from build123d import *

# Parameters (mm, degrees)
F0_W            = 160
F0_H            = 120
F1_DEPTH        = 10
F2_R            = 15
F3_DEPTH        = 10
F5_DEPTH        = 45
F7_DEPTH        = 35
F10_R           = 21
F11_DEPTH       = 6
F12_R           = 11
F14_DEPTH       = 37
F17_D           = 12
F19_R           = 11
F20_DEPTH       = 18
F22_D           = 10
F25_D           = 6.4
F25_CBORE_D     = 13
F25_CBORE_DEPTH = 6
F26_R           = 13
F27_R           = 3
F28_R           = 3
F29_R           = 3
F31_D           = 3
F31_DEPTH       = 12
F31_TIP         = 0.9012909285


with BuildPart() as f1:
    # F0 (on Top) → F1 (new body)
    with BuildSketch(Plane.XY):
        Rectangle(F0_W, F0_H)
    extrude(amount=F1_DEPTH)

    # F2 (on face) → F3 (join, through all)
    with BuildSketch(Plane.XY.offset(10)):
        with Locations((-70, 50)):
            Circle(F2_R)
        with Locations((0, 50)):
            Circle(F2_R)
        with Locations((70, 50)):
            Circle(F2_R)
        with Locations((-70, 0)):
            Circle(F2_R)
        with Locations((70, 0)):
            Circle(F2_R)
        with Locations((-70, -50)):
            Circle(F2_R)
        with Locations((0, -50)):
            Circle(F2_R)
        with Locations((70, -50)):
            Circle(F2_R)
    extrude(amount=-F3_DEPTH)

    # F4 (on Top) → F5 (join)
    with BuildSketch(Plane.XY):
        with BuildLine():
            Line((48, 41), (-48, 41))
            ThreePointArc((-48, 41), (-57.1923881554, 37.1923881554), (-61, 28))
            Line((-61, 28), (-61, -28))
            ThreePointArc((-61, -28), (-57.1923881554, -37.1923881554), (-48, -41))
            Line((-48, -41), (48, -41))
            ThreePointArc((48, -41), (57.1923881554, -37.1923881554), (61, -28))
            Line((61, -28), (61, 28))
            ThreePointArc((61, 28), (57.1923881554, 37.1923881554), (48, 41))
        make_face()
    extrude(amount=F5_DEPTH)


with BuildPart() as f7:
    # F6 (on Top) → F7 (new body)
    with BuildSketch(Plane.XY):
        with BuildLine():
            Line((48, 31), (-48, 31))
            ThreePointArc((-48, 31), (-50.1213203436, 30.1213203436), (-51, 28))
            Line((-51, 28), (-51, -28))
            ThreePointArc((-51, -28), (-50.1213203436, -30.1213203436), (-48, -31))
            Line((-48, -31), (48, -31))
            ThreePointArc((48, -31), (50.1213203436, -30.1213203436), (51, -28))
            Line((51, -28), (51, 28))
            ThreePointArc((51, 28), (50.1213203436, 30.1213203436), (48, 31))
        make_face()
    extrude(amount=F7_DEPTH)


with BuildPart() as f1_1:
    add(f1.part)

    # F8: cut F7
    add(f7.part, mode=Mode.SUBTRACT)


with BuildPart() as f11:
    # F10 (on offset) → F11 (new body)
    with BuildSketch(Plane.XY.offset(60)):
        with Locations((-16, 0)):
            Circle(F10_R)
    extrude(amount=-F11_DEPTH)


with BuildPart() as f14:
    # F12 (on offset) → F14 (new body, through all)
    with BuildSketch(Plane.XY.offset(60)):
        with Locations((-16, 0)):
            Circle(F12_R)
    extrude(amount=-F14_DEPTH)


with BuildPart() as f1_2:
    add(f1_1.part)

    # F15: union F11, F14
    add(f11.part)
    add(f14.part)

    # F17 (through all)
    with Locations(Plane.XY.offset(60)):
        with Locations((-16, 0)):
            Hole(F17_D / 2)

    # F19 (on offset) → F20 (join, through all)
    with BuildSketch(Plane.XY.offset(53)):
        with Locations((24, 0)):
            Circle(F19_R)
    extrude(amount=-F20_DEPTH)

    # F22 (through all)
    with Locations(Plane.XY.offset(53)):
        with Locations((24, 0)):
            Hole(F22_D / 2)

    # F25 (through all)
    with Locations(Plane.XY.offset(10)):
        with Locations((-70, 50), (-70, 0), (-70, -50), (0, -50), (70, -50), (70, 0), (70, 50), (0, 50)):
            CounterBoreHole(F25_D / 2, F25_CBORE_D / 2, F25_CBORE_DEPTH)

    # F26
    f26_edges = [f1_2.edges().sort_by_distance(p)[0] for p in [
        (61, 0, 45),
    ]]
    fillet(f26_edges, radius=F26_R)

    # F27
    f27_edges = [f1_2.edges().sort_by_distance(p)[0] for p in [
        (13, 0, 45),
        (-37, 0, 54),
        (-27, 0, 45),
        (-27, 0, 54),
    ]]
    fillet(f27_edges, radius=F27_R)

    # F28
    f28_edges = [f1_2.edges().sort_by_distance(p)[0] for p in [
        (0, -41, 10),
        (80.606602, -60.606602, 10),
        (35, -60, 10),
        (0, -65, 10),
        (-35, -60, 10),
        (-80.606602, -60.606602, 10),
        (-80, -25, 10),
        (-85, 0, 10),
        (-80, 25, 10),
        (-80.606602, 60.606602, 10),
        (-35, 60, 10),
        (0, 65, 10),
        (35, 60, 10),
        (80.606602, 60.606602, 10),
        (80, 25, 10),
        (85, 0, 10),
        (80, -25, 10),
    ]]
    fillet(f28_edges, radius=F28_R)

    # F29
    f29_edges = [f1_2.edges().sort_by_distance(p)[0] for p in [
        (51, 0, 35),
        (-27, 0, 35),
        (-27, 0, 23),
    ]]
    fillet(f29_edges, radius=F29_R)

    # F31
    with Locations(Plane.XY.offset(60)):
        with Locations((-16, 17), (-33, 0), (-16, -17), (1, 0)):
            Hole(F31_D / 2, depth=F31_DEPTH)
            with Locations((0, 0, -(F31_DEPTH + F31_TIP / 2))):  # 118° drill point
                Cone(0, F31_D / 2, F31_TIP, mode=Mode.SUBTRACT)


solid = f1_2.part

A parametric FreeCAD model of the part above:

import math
import FreeCAD as App
import Part
import Sketcher
from FreeCAD import Vector


def edges_at(feature, points):
    """Names of the edges that pass closest to the given points."""
    edges = feature.Shape.Edges
    near = lambda p: min(range(len(edges)), key=lambda i: edges[i].distToShape(Part.Vertex(*p))[0])
    return sorted({f"Edge{near(p) + 1}" for p in points})


def add_polygon(sketch, points):
    """Adds a closed chain of lines whose ends are joined by coincident constraints."""
    first, n = sketch.GeometryCount, len(points)
    for a, b in zip(points, points[1:] + points[:1]):
        sketch.addGeometry(Part.LineSegment(App.Vector(*a, 0), App.Vector(*b, 0)), False)
    for i in range(n):
        sketch.addConstraint(Sketcher.Constraint("Coincident", first + i, 2, first + (i + 1) % n, 1))

doc = App.newDocument("Part")
body = doc.addObject("PartDesign::Body", "Body")

sketch1 = body.newObject("Sketcher::SketchObject", "Sketch")
sketch1.AttachmentSupport = (doc.getObject("XY_Plane"), [""])
sketch1.MapMode = "FlatFace"
add_polygon(sketch1, [(-80, 60), (-80, -60), (80, -60), (80, 60)])
sketch1.addConstraint(Sketcher.Constraint("Vertical", 0))
sketch1.addConstraint(Sketcher.Constraint("Horizontal", 1))
sketch1.addConstraint(Sketcher.Constraint("Vertical", 2))
sketch1.addConstraint(Sketcher.Constraint("Horizontal", 3))
sketch1.addConstraint(Sketcher.Constraint("Symmetric", 0, 2, 2, 2, -1, 1))
sketch1.addConstraint(Sketcher.Constraint("DistanceX", 1, 1, 1, 2, 160.0))
sketch1.addConstraint(Sketcher.Constraint("DistanceY", 0, 2, 0, 1, 120.0))
pad1 = body.newObject("PartDesign::Pad", "Pad")
pad1.Profile = sketch1
pad1.Length = 10

sketch2 = body.newObject("Sketcher::SketchObject", "Sketch001")
sketch2.AttachmentSupport = (doc.getObject("XY_Plane"), [""])
sketch2.MapMode = "FlatFace"
sketch2.AttachmentOffset = App.Placement(Vector(0, 0, 10), App.Rotation())
sketch2.addGeometry(Part.Circle(Vector(-70, 50, 0), Vector(0, 0, 1), 15), False)
sketch2.addGeometry(Part.Circle(Vector(0, 50, 0), Vector(0, 0, 1), 15), False)
sketch2.addGeometry(Part.Circle(Vector(70, 50, 0), Vector(0, 0, 1), 15), False)
sketch2.addGeometry(Part.Circle(Vector(-70, 0, 0), Vector(0, 0, 1), 15), False)
sketch2.addGeometry(Part.Circle(Vector(70, 0, 0), Vector(0, 0, 1), 15), False)
sketch2.addGeometry(Part.Circle(Vector(-70, -50, 0), Vector(0, 0, 1), 15), False)
sketch2.addGeometry(Part.Circle(Vector(0, -50, 0), Vector(0, 0, 1), 15), False)
sketch2.addGeometry(Part.Circle(Vector(70, -50, 0), Vector(0, 0, 1), 15), False)
sketch2.addConstraint(Sketcher.Constraint("Equal", 0, 1))
sketch2.addConstraint(Sketcher.Constraint("Equal", 1, 2))
sketch2.addConstraint(Sketcher.Constraint("Equal", 2, 3))
sketch2.addConstraint(Sketcher.Constraint("Equal", 3, 4))
sketch2.addConstraint(Sketcher.Constraint("Equal", 4, 5))
sketch2.addConstraint(Sketcher.Constraint("Equal", 5, 6))
sketch2.addConstraint(Sketcher.Constraint("Equal", 6, 7))
sketch2.addConstraint(Sketcher.Constraint("Symmetric", 3, 3, 4, 3, -1, 1))
sketch2.addConstraint(Sketcher.Constraint("Symmetric", 2, 3, 5, 3, -1, 1))
sketch2.addConstraint(Sketcher.Constraint("Symmetric", 1, 3, 6, 3, -1, 1))
sketch2.addConstraint(Sketcher.Constraint("Symmetric", 0, 3, 7, 3, -1, 1))
sketch2.addConstraint(Sketcher.Constraint("Symmetric", 0, 3, 2, 3, -2))
sketch2.addConstraint(Sketcher.Constraint("PointOnObject", 1, 3, -2))
sketch2.addConstraint(Sketcher.Constraint("PointOnObject", 3, 3, -1))
sketch2.addConstraint(Sketcher.Constraint("Horizontal", 0, 3, 1, 3))
sketch2.addConstraint(Sketcher.Constraint("Vertical", 0, 3, 3, 3))
sketch2.addConstraint(Sketcher.Constraint("Diameter", 0, 30.0))
sketch2.addConstraint(Sketcher.Constraint("DistanceX", 0, 3, -1, 1, 70.0))
sketch2.addConstraint(Sketcher.Constraint("DistanceY", -1, 1, 0, 3, 50.0))
pad2 = body.newObject("PartDesign::Pad", "Pad001")
pad2.Profile = sketch2
pad2.Type = "UpToLast"
pad2.Reversed = True

sketch3 = body.newObject("Sketcher::SketchObject", "Sketch002")
sketch3.AttachmentSupport = (doc.getObject("XY_Plane"), [""])
sketch3.MapMode = "FlatFace"
sketch3.addGeometry(Part.LineSegment(Vector(48, 41, 0), Vector(-48, 41, 0)), False)
sketch3.addGeometry(Part.ArcOfCircle(Part.Circle(Vector(-48, 28, 0), Vector(0, 0, 1), 13), math.radians(90), math.radians(180)), False)
sketch3.addGeometry(Part.LineSegment(Vector(-61, 28, 0), Vector(-61, -28, 0)), False)
sketch3.addGeometry(Part.ArcOfCircle(Part.Circle(Vector(-48, -28, 0), Vector(0, 0, 1), 13), math.radians(180), math.radians(270)), False)
sketch3.addGeometry(Part.LineSegment(Vector(-48, -41, 0), Vector(48, -41, 0)), False)
sketch3.addGeometry(Part.ArcOfCircle(Part.Circle(Vector(48, -28, 0), Vector(0, 0, 1), 13), math.radians(-90), math.radians(0)), False)
sketch3.addGeometry(Part.LineSegment(Vector(61, -28, 0), Vector(61, 28, 0)), False)
sketch3.addGeometry(Part.ArcOfCircle(Part.Circle(Vector(48, 28, 0), Vector(0, 0, 1), 13), math.radians(0), math.radians(90)), False)
sketch3.addConstraint(Sketcher.Constraint("Tangent", 0, 2, 1, 1))
sketch3.addConstraint(Sketcher.Constraint("Tangent", 1, 2, 2, 1))
sketch3.addConstraint(Sketcher.Constraint("Tangent", 2, 2, 3, 1))
sketch3.addConstraint(Sketcher.Constraint("Tangent", 3, 2, 4, 1))
sketch3.addConstraint(Sketcher.Constraint("Tangent", 4, 2, 5, 1))
sketch3.addConstraint(Sketcher.Constraint("Tangent", 5, 2, 6, 1))
sketch3.addConstraint(Sketcher.Constraint("Tangent", 6, 2, 7, 1))
sketch3.addConstraint(Sketcher.Constraint("Tangent", 7, 2, 0, 1))
sketch3.addConstraint(Sketcher.Constraint("Horizontal", 0))
sketch3.addConstraint(Sketcher.Constraint("Vertical", 2))
sketch3.addConstraint(Sketcher.Constraint("Horizontal", 4))
sketch3.addConstraint(Sketcher.Constraint("Vertical", 6))
sketch3.addConstraint(Sketcher.Constraint("Equal", 1, 3))
sketch3.addConstraint(Sketcher.Constraint("Equal", 3, 5))
sketch3.addConstraint(Sketcher.Constraint("Equal", 5, 7))
sketch3.addConstraint(Sketcher.Constraint("Symmetric", 1, 3, 5, 3, -1, 1))
sketch3.addConstraint(Sketcher.Constraint("Radius", 1, 13.0))
sketch3.addConstraint(Sketcher.Constraint("DistanceX", 0, 2, 0, 1, 96.0))
sketch3.addConstraint(Sketcher.Constraint("DistanceY", 2, 2, 2, 1, 56.0))
pad3 = body.newObject("PartDesign::Pad", "Pad002")
pad3.Profile = sketch3
pad3.Length = 45
body2 = doc.addObject("PartDesign::Body", "Body001")

sketch4 = body2.newObject("Sketcher::SketchObject", "Sketch003")
sketch4.AttachmentSupport = (doc.getObject("XY_Plane001"), [""])
sketch4.MapMode = "FlatFace"
sketch4.addGeometry(Part.LineSegment(Vector(48, 31, 0), Vector(-48, 31, 0)), False)
sketch4.addGeometry(Part.ArcOfCircle(Part.Circle(Vector(-48, 28, 0), Vector(0, 0, 1), 3), math.radians(90), math.radians(180)), False)
sketch4.addGeometry(Part.LineSegment(Vector(-51, 28, 0), Vector(-51, -28, 0)), False)
sketch4.addGeometry(Part.ArcOfCircle(Part.Circle(Vector(-48, -28, 0), Vector(0, 0, 1), 3), math.radians(180), math.radians(270)), False)
sketch4.addGeometry(Part.LineSegment(Vector(-48, -31, 0), Vector(48, -31, 0)), False)
sketch4.addGeometry(Part.ArcOfCircle(Part.Circle(Vector(48, -28, 0), Vector(0, 0, 1), 3), math.radians(-90), math.radians(0)), False)
sketch4.addGeometry(Part.LineSegment(Vector(51, -28, 0), Vector(51, 28, 0)), False)
sketch4.addGeometry(Part.ArcOfCircle(Part.Circle(Vector(48, 28, 0), Vector(0, 0, 1), 3), math.radians(0), math.radians(90)), False)
sketch4.addConstraint(Sketcher.Constraint("Tangent", 0, 2, 1, 1))
sketch4.addConstraint(Sketcher.Constraint("Tangent", 1, 2, 2, 1))
sketch4.addConstraint(Sketcher.Constraint("Tangent", 2, 2, 3, 1))
sketch4.addConstraint(Sketcher.Constraint("Tangent", 3, 2, 4, 1))
sketch4.addConstraint(Sketcher.Constraint("Tangent", 4, 2, 5, 1))
sketch4.addConstraint(Sketcher.Constraint("Tangent", 5, 2, 6, 1))
sketch4.addConstraint(Sketcher.Constraint("Tangent", 6, 2, 7, 1))
sketch4.addConstraint(Sketcher.Constraint("Tangent", 7, 2, 0, 1))
sketch4.addConstraint(Sketcher.Constraint("Horizontal", 0))
sketch4.addConstraint(Sketcher.Constraint("Vertical", 2))
sketch4.addConstraint(Sketcher.Constraint("Horizontal", 4))
sketch4.addConstraint(Sketcher.Constraint("Vertical", 6))
sketch4.addConstraint(Sketcher.Constraint("Equal", 1, 3))
sketch4.addConstraint(Sketcher.Constraint("Equal", 3, 5))
sketch4.addConstraint(Sketcher.Constraint("Equal", 5, 7))
sketch4.addConstraint(Sketcher.Constraint("Symmetric", 1, 3, 5, 3, -1, 1))
sketch4.addConstraint(Sketcher.Constraint("Radius", 1, 3.0))
sketch4.addConstraint(Sketcher.Constraint("DistanceX", 0, 2, 0, 1, 96.0))
sketch4.addConstraint(Sketcher.Constraint("DistanceY", 2, 2, 2, 1, 56.0))
pad4 = body2.newObject("PartDesign::Pad", "Pad003")
pad4.Profile = sketch4
pad4.Length = 35
doc.recompute()

boolean = body.newObject("PartDesign::Boolean", "Boolean")
boolean.Type = "Cut"
boolean.addObjects([body2])
body3 = doc.addObject("PartDesign::Body", "Body002")

sketch5 = body3.newObject("Sketcher::SketchObject", "Sketch004")
sketch5.AttachmentSupport = (doc.getObject("XY_Plane002"), [""])
sketch5.MapMode = "FlatFace"
sketch5.AttachmentOffset = App.Placement(Vector(0, 0, 60), App.Rotation())
sketch5.addGeometry(Part.Circle(Vector(-16, 0, 0), Vector(0, 0, 1), 21), False)
sketch5.addConstraint(Sketcher.Constraint("PointOnObject", 0, 3, -1))
sketch5.addConstraint(Sketcher.Constraint("Diameter", 0, 42.0))
sketch5.addConstraint(Sketcher.Constraint("DistanceX", 0, 3, -1, 1, 16.0))
pad5 = body3.newObject("PartDesign::Pad", "Pad004")
pad5.Profile = sketch5
pad5.Length = 6
pad5.Reversed = True
body4 = doc.addObject("PartDesign::Body", "Body003")

sketch6 = body4.newObject("Sketcher::SketchObject", "Sketch005")
sketch6.AttachmentSupport = (doc.getObject("XY_Plane003"), [""])
sketch6.MapMode = "FlatFace"
sketch6.AttachmentOffset = App.Placement(Vector(0, 0, 60), App.Rotation())
sketch6.addGeometry(Part.Circle(Vector(-16, 0, 0), Vector(0, 0, 1), 11), False)
sketch6.addConstraint(Sketcher.Constraint("PointOnObject", 0, 3, -1))
sketch6.addConstraint(Sketcher.Constraint("Diameter", 0, 22.0))
sketch6.addConstraint(Sketcher.Constraint("DistanceX", 0, 3, -1, 1, 16.0))
pad6 = body4.newObject("PartDesign::Pad", "Pad005")
pad6.Profile = sketch6
pad6.Length = 37
pad6.Reversed = True
body.AllowCompound = True
doc.recompute()

boolean2 = body.newObject("PartDesign::Boolean", "Boolean001")
boolean2.Type = "Fuse"
boolean2.addObjects([body3])
doc.recompute()

boolean3 = body.newObject("PartDesign::Boolean", "Boolean002")
boolean3.Type = "Fuse"
boolean3.addObjects([body4])

sketch7 = body.newObject("Sketcher::SketchObject", "Sketch006")
sketch7.AttachmentSupport = (doc.getObject("XY_Plane"), [""])
sketch7.MapMode = "FlatFace"
sketch7.AttachmentOffset = App.Placement(Vector(0, 0, 60), App.Rotation())
sketch7.addGeometry(Part.Circle(Vector(-16, 0, 0), Vector(0, 0, 1), 6), False)
sketch7.addConstraint(Sketcher.Constraint("PointOnObject", 0, 3, -1))
sketch7.addConstraint(Sketcher.Constraint("Diameter", 0, 12.0))
sketch7.addConstraint(Sketcher.Constraint("DistanceX", 0, 3, -1, 1, 16.0))
doc.recompute()
hole = body.newObject("PartDesign::Hole", "Hole")
hole.Profile = sketch7
hole.ThreadType = "None"
hole.Diameter = 12
hole.DepthType = "ThroughAll"

sketch8 = body.newObject("Sketcher::SketchObject", "Sketch007")
sketch8.AttachmentSupport = (doc.getObject("XY_Plane"), [""])
sketch8.MapMode = "FlatFace"
sketch8.AttachmentOffset = App.Placement(Vector(0, 0, 53), App.Rotation())
sketch8.addGeometry(Part.Circle(Vector(24, 0, 0), Vector(0, 0, 1), 11), False)
sketch8.addConstraint(Sketcher.Constraint("PointOnObject", 0, 3, -1))
sketch8.addConstraint(Sketcher.Constraint("Diameter", 0, 22.0))
sketch8.addConstraint(Sketcher.Constraint("DistanceX", -1, 1, 0, 3, 24.0))
pad7 = body.newObject("PartDesign::Pad", "Pad006")
pad7.Profile = sketch8
pad7.Type = "UpToLast"
pad7.Reversed = True

sketch9 = body.newObject("Sketcher::SketchObject", "Sketch008")
sketch9.AttachmentSupport = (doc.getObject("XY_Plane"), [""])
sketch9.MapMode = "FlatFace"
sketch9.AttachmentOffset = App.Placement(Vector(0, 0, 53), App.Rotation())
sketch9.addGeometry(Part.Circle(Vector(24, 0, 0), Vector(0, 0, 1), 5), False)
sketch9.addConstraint(Sketcher.Constraint("PointOnObject", 0, 3, -1))
sketch9.addConstraint(Sketcher.Constraint("Diameter", 0, 10.0))
sketch9.addConstraint(Sketcher.Constraint("DistanceX", -1, 1, 0, 3, 24.0))
doc.recompute()
hole2 = body.newObject("PartDesign::Hole", "Hole001")
hole2.Profile = sketch9
hole2.ThreadType = "None"
hole2.Diameter = 10
hole2.DepthType = "ThroughAll"

sketch10 = body.newObject("Sketcher::SketchObject", "Sketch009")
sketch10.AttachmentSupport = (doc.getObject("XY_Plane"), [""])
sketch10.MapMode = "FlatFace"
sketch10.AttachmentOffset = App.Placement(Vector(0, 0, 10), App.Rotation())
sketch10.addGeometry(Part.Circle(Vector(-70, 50, 0), Vector(0, 0, 1), 3.2), False)
sketch10.addGeometry(Part.Circle(Vector(-70, 0, 0), Vector(0, 0, 1), 3.2), False)
sketch10.addGeometry(Part.Circle(Vector(-70, -50, 0), Vector(0, 0, 1), 3.2), False)
sketch10.addGeometry(Part.Circle(Vector(0, -50, 0), Vector(0, 0, 1), 3.2), False)
sketch10.addGeometry(Part.Circle(Vector(70, -50, 0), Vector(0, 0, 1), 3.2), False)
sketch10.addGeometry(Part.Circle(Vector(70, 0, 0), Vector(0, 0, 1), 3.2), False)
sketch10.addGeometry(Part.Circle(Vector(70, 50, 0), Vector(0, 0, 1), 3.2), False)
sketch10.addGeometry(Part.Circle(Vector(0, 50, 0), Vector(0, 0, 1), 3.2), False)
sketch10.addConstraint(Sketcher.Constraint("Equal", 0, 1))
sketch10.addConstraint(Sketcher.Constraint("Equal", 1, 2))
sketch10.addConstraint(Sketcher.Constraint("Equal", 2, 3))
sketch10.addConstraint(Sketcher.Constraint("Equal", 3, 4))
sketch10.addConstraint(Sketcher.Constraint("Equal", 4, 5))
sketch10.addConstraint(Sketcher.Constraint("Equal", 5, 6))
sketch10.addConstraint(Sketcher.Constraint("Equal", 6, 7))
sketch10.addConstraint(Sketcher.Constraint("Symmetric", 0, 3, 4, 3, -1, 1))
sketch10.addConstraint(Sketcher.Constraint("Symmetric", 1, 3, 5, 3, -1, 1))
sketch10.addConstraint(Sketcher.Constraint("Symmetric", 2, 3, 6, 3, -1, 1))
sketch10.addConstraint(Sketcher.Constraint("Symmetric", 3, 3, 7, 3, -1, 1))
sketch10.addConstraint(Sketcher.Constraint("Symmetric", 2, 3, 4, 3, -2))
sketch10.addConstraint(Sketcher.Constraint("PointOnObject", 1, 3, -1))
sketch10.addConstraint(Sketcher.Constraint("PointOnObject", 3, 3, -2))
sketch10.addConstraint(Sketcher.Constraint("Horizontal", 2, 3, 3, 3))
sketch10.addConstraint(Sketcher.Constraint("Vertical", 0, 3, 1, 3))
sketch10.addConstraint(Sketcher.Constraint("Diameter", 0, 6.4))
sketch10.addConstraint(Sketcher.Constraint("DistanceX", 0, 3, -1, 1, 70.0))
sketch10.addConstraint(Sketcher.Constraint("DistanceY", -1, 1, 0, 3, 50.0))
doc.recompute()
hole3 = body.newObject("PartDesign::Hole", "Hole002")
hole3.Profile = sketch10
hole3.ThreadType = "None"
hole3.Diameter = 6.4
hole3.DepthType = "ThroughAll"
hole3.HoleCutType = "Counterbore"
hole3.HoleCutDiameter = 13
hole3.HoleCutDepth = 6
doc.recompute()

fillet = body.newObject("PartDesign::Fillet", "Fillet")
fillet.Base = (hole3, edges_at(hole3, [(61, 0, 45)]))
fillet.Radius = 13
doc.recompute()

fillet2 = body.newObject("PartDesign::Fillet", "Fillet001")
fillet2.Base = (fillet, edges_at(fillet, [
    (13, 0, 45),
    (-37, 0, 54),
    (-27, 0, 45),
    (-27, 0, 54),
]))
fillet2.Radius = 3
doc.recompute()

fillet3 = body.newObject("PartDesign::Fillet", "Fillet002")
fillet3.Base = (fillet2, edges_at(fillet2, [
    (0, -41, 10),
    (80.607, -60.607, 10),
    (35, -60, 10),
    (0, -65, 10),
    (-35, -60, 10),
    (-80.607, -60.607, 10),
    (-80, -25, 10),
    (-85, 0, 10),
    (-80, 25, 10),
    (-80.607, 60.607, 10),
    (-35, 60, 10),
    (0, 65, 10),
    (35, 60, 10),
    (80.607, 60.607, 10),
    (80, 25, 10),
    (85, 0, 10),
    (80, -25, 10),
]))
fillet3.Radius = 3
doc.recompute()

fillet4 = body.newObject("PartDesign::Fillet", "Fillet003")
fillet4.Base = (fillet3, edges_at(fillet3, [(51, 0, 35), (-27, 0, 35), (-27, 0, 23)]))
fillet4.Radius = 3

sketch11 = body.newObject("Sketcher::SketchObject", "Sketch010")
sketch11.AttachmentSupport = (doc.getObject("XY_Plane"), [""])
sketch11.MapMode = "FlatFace"
sketch11.AttachmentOffset = App.Placement(Vector(0, 0, 60), App.Rotation())
sketch11.addGeometry(Part.Circle(Vector(-16, 17, 0), Vector(0, 0, 1), 1.5), False)
sketch11.addGeometry(Part.Circle(Vector(-33, 0, 0), Vector(0, 0, 1), 1.5), False)
sketch11.addGeometry(Part.Circle(Vector(-16, -17, 0), Vector(0, 0, 1), 1.5), False)
sketch11.addGeometry(Part.Circle(Vector(1, 0, 0), Vector(0, 0, 1), 1.5), False)
sketch11.addConstraint(Sketcher.Constraint("Equal", 0, 1))
sketch11.addConstraint(Sketcher.Constraint("Equal", 1, 2))
sketch11.addConstraint(Sketcher.Constraint("Equal", 2, 3))
sketch11.addConstraint(Sketcher.Constraint("Symmetric", 0, 3, 2, 3, -1))
sketch11.addConstraint(Sketcher.Constraint("PointOnObject", 1, 3, -1))
sketch11.addConstraint(Sketcher.Constraint("PointOnObject", 3, 3, -1))
sketch11.addConstraint(Sketcher.Constraint("Diameter", 0, 3.0))
sketch11.addConstraint(Sketcher.Constraint("DistanceX", 0, 3, -1, 1, 16.0))
sketch11.addConstraint(Sketcher.Constraint("DistanceY", -1, 1, 0, 3, 17.0))
sketch11.addConstraint(Sketcher.Constraint("DistanceX", 1, 3, -1, 1, 33.0))
sketch11.addConstraint(Sketcher.Constraint("DistanceX", -1, 1, 3, 3, 1.0))
doc.recompute()
hole4 = body.newObject("PartDesign::Hole", "Hole003")
hole4.Profile = sketch11
hole4.ThreadType = "None"
hole4.Diameter = 3
hole4.DepthType = "Dimension"
hole4.Depth = 12
hole4.DrillPoint = "Angled"
hole4.DrillPointAngle = 118

doc.recompute()
